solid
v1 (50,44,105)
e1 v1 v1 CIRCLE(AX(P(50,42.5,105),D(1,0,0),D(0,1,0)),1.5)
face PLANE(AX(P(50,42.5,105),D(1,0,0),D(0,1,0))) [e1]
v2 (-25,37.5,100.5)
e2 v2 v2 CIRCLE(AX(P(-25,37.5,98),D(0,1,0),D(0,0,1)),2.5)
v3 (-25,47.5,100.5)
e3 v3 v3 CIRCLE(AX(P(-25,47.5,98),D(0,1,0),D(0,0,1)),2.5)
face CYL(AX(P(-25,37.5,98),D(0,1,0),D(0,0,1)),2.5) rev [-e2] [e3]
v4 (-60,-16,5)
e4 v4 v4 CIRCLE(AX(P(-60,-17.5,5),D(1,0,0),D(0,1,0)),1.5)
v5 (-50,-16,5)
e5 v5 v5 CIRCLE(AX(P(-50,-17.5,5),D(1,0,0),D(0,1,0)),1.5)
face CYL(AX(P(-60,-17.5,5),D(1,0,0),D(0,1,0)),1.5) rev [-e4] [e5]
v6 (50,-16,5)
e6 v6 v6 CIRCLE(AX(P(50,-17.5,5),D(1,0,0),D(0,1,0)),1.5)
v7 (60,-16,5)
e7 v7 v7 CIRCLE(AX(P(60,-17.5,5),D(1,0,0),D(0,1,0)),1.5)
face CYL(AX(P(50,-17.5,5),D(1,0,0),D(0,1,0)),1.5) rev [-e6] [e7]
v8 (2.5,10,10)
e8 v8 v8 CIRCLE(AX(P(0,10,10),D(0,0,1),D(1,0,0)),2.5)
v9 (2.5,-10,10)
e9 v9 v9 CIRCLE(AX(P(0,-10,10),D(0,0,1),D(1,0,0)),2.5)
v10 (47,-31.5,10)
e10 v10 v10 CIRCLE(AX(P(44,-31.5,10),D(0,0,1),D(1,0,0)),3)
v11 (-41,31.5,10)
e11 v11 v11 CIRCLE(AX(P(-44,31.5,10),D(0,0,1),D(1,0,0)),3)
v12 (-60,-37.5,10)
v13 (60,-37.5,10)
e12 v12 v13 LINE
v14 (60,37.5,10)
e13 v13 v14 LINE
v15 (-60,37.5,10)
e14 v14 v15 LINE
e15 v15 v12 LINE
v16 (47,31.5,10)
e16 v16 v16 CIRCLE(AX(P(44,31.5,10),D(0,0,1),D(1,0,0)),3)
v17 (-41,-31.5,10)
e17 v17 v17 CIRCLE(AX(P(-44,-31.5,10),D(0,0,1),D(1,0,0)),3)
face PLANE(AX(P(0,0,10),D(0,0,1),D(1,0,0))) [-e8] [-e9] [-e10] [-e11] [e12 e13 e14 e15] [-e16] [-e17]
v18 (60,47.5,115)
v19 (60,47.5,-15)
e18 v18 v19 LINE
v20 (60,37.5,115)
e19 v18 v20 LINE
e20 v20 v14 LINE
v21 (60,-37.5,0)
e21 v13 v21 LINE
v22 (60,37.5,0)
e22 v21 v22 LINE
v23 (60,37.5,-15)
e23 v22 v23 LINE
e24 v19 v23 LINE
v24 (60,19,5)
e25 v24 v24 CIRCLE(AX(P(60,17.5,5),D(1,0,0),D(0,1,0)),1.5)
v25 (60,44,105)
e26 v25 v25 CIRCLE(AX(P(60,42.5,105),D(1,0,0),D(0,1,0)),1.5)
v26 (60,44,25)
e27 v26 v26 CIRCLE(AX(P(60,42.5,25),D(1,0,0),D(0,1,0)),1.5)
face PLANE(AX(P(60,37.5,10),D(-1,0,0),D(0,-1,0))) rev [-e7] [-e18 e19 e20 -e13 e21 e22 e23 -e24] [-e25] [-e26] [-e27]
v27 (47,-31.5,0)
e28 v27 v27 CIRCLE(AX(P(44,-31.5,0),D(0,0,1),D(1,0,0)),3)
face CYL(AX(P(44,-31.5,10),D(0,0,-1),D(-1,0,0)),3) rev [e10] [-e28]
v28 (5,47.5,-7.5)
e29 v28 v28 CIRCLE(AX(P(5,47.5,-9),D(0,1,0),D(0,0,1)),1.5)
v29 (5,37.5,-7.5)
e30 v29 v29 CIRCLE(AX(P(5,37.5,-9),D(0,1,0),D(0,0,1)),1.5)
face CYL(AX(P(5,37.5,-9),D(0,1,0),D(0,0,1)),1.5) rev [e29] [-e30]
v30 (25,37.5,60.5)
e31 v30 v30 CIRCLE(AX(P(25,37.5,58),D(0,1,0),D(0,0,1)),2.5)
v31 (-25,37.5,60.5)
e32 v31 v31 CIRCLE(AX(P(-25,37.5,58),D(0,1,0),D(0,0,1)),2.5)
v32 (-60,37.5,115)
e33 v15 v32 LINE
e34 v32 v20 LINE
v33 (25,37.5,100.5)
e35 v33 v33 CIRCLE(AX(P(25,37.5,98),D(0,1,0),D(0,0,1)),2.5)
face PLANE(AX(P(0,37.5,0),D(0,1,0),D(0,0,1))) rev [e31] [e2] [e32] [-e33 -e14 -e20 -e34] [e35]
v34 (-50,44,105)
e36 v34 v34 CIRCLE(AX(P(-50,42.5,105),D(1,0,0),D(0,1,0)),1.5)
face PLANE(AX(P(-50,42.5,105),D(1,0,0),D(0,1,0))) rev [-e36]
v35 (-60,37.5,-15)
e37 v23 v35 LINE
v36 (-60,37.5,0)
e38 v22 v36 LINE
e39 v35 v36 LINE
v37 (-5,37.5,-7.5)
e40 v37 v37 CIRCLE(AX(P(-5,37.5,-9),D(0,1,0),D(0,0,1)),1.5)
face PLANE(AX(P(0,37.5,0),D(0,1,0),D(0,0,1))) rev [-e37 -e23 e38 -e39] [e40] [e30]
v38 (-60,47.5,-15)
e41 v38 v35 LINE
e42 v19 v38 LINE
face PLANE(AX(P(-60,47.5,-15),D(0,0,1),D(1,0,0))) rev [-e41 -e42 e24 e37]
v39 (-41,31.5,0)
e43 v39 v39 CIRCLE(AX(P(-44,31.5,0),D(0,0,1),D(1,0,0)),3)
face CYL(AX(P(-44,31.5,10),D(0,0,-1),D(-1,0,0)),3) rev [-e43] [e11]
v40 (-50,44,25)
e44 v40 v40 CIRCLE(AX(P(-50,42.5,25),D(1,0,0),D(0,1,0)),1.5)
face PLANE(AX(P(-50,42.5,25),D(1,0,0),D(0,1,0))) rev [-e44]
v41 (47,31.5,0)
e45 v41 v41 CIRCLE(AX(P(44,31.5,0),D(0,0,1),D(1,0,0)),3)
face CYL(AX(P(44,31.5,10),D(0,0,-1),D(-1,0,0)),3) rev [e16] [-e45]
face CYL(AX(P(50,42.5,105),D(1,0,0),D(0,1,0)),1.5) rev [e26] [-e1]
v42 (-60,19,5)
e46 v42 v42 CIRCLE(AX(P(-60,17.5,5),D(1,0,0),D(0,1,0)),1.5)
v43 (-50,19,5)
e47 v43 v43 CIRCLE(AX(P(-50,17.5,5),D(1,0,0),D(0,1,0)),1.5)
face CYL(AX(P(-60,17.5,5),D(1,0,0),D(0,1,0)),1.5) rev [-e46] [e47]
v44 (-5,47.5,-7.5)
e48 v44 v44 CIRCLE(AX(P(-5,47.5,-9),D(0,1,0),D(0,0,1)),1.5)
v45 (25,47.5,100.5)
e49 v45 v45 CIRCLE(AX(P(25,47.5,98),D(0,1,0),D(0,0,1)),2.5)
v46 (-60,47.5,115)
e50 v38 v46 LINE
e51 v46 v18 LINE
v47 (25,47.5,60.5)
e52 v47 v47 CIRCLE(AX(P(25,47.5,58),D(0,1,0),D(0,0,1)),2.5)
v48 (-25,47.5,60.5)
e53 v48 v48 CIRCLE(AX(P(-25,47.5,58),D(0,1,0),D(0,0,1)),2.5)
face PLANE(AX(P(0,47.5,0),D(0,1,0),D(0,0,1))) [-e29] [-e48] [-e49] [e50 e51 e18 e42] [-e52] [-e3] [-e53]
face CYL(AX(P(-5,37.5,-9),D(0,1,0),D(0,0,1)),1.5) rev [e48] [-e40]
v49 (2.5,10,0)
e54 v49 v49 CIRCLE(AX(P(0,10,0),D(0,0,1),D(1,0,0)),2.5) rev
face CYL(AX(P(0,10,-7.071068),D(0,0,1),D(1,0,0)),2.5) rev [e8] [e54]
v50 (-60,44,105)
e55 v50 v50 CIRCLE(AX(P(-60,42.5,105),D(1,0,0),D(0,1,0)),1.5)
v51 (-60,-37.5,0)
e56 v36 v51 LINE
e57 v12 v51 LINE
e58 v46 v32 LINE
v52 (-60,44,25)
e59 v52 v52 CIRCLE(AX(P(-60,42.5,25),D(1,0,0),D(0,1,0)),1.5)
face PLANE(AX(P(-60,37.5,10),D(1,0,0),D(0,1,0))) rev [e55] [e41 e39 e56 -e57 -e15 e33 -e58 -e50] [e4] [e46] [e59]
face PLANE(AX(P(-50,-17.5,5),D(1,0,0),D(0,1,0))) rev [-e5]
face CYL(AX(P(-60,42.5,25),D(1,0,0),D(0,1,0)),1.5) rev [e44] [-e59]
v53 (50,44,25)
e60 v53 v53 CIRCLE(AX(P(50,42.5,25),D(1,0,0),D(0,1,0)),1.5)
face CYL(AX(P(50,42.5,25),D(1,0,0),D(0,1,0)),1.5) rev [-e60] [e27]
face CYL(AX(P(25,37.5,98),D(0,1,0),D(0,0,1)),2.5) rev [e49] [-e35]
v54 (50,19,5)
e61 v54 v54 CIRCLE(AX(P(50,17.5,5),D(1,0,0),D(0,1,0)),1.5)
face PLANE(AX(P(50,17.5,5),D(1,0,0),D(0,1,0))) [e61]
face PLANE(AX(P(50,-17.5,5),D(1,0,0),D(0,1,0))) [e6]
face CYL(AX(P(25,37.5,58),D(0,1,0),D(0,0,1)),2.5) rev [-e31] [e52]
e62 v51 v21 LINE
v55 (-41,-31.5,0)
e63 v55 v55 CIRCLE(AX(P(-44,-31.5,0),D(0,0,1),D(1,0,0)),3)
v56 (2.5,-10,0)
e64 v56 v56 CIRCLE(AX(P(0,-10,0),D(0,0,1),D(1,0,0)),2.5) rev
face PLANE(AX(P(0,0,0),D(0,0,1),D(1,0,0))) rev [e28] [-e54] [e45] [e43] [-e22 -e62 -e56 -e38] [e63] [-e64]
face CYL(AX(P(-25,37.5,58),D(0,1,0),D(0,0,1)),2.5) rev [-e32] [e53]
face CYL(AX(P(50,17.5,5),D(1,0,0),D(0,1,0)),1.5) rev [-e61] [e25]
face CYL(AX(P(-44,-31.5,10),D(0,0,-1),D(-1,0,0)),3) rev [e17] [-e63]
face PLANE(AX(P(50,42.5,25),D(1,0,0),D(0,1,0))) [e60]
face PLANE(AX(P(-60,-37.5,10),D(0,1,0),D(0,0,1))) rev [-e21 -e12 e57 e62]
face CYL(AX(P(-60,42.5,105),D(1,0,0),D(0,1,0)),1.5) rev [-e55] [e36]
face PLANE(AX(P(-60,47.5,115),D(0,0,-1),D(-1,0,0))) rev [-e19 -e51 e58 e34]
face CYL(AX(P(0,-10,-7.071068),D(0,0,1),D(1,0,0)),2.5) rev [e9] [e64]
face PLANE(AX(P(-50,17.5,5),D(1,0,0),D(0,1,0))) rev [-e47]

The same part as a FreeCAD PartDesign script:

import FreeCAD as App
import Part
import Sketcher

V = App.Vector
Q = App.Units.Quantity

doc = App.newDocument("Part")
params = doc.addObject("Spreadsheet::Sheet", "Params")
for row, (alias, value) in enumerate([
    ("sketch1_diameter", "6 mm"),
    ("sketch1_width", "120 mm"),
    ("sketch1_height", "75 mm"),
    ("pad1_length", "10 mm"),
    ("sketch2_diameter", "5 mm"),
    ("pocket1_length", "10 mm"),
    ("sketch3_diameter", "3 mm"),
    ("pocket2_length", "10 mm"),
    ("linearpattern_pitch", "110 mm"),
    ("sketch4_width", "120 mm"),
    ("sketch4_height", "130 mm"),
    ("pad2_length", "10 mm"),
    ("sketch5_diameter", "3 mm"),
    ("pocket3_length", "10 mm"),
    ("linearpattern2_pitch", "110 mm"),
    ("sketch6_diameter", "5 mm"),
    ("pocket4_length", "10 mm"),
    ("sketch7_diameter", "3 mm"),
    ("pocket5_length", "10 mm"),
], start=1):
    params.set(f"A{row}", alias)
    params.set(f"B{row}", "=" + value)
    params.setAlias(f"B{row}", alias)

body = doc.addObject("PartDesign::Body", "Body")

sketch1 = body.newObject("Sketcher::SketchObject", "Sketch")
sketch1.AttachmentSupport = (doc.getObject("XY_Plane"), [""])
sketch1.MapMode = "FlatFace"
sketch1.addGeometry(Part.LineSegment(V(-60, 37.5, 0), V(-60, -37.5, 0)), False)
sketch1.addGeometry(Part.LineSegment(V(-60, -37.5, 0), V(60, -37.5, 0)), False)
sketch1.addGeometry(Part.LineSegment(V(60, -37.5, 0), V(60, 37.5, 0)), False)
sketch1.addGeometry(Part.LineSegment(V(60, 37.5, 0), V(-60, 37.5, 0)), False)
sketch1.addGeometry(Part.Circle(V(-44, -31.5, 0), V(0, 0, 1), 3), False)
sketch1.addGeometry(Part.Circle(V(44, -31.5, 0), V(0, 0, 1), 3), False)
sketch1.addGeometry(Part.Circle(V(-44, 31.5, 0), V(0, 0, 1), 3), False)
sketch1.addGeometry(Part.Circle(V(44, 31.5, 0), V(0, 0, 1), 3), False)
sketch1.addConstraint(Sketcher.Constraint("Coincident", 0, 2, 1, 1))
sketch1.addConstraint(Sketcher.Constraint("Coincident", 1, 2, 2, 1))
sketch1.addConstraint(Sketcher.Constraint("Coincident", 2, 2, 3, 1))
sketch1.addConstraint(Sketcher.Constraint("Coincident", 3, 2, 0, 1))
sketch1.addConstraint(Sketcher.Constraint("Vertical", 0))
sketch1.addConstraint(Sketcher.Constraint("Horizontal", 1))
sketch1.addConstraint(Sketcher.Constraint("Vertical", 2))
sketch1.addConstraint(Sketcher.Constraint("Horizontal", 3))
sketch1.addConstraint(Sketcher.Constraint("Equal", 4, 5))
sketch1.addConstraint(Sketcher.Constraint("Equal", 5, 6))
sketch1.addConstraint(Sketcher.Constraint("Equal", 6, 7))
sketch1.addConstraint(Sketcher.Constraint("Symmetric", 5, 3, 6, 3, -1, 1))
sketch1.addConstraint(Sketcher.Constraint("Symmetric", 4, 3, 7, 3, -1, 1))
sketch1.addConstraint(Sketcher.Constraint("Symmetric", 0, 2, 2, 2, -1, 1))
sketch1.addConstraint(Sketcher.Constraint("Symmetric", 4, 3, 5, 3, -2))
sketch1.addConstraint(Sketcher.Constraint("Diameter", 4, Q("6 mm")))
sketch1.addConstraint(Sketcher.Constraint("DistanceX", 1, 1, 1, 2, Q("120 mm")))
sketch1.addConstraint(Sketcher.Constraint("DistanceY", 0, 2, 0, 1, Q("75 mm")))
sketch1.addConstraint(Sketcher.Constraint("DistanceX", 4, 3, -1, 1, Q("44 mm")))
sketch1.addConstraint(Sketcher.Constraint("DistanceY", 4, 3, 6, 3, Q("63 mm")))
sketch1.setExpression("Constraints[15]", "Params.sketch1_diameter")
sketch1.setExpression("Constraints[16]", "Params.sketch1_width")
sketch1.setExpression("Constraints[17]", "Params.sketch1_height")
pad1 = body.newObject("PartDesign::Pad", "Pad")
pad1.Profile = sketch1
pad1.setExpression("Length", "Params.pad1_length")

sketch2 = body.newObject("Sketcher::SketchObject", "Sketch001")
sketch2.AttachmentSupport = (doc.getObject("XY_Plane"), [""])
sketch2.MapMode = "FlatFace"
sketch2.AttachmentOffset = App.Placement(V(0, 0, 10), App.Rotation())
sketch2.addGeometry(Part.Circle(V(0, 10, 0), V(0, 0, 1), 2.5), False)
sketch2.addGeometry(Part.Circle(V(0, -10, 0), V(0, 0, 1), 2.5), False)
sketch2.addConstraint(Sketcher.Constraint("Equal", 0, 1))
sketch2.addConstraint(Sketcher.Constraint("Symmetric", 0, 3, 1, 3, -1, 1))
sketch2.addConstraint(Sketcher.Constraint("PointOnObject", 0, 3, -2))
sketch2.addConstraint(Sketcher.Constraint("Diameter", 0, Q("5 mm")))
sketch2.addConstraint(Sketcher.Constraint("DistanceY", -1, 1, 0, 3, Q("10 mm")))
sketch2.setExpression("Constraints[3]", "Params.sketch2_diameter")
pocket1 = body.newObject("PartDesign::Pocket", "Pocket")
pocket1.Profile = sketch2
pocket1.setExpression("Length", "Params.pocket1_length")

sketch3 = body.newObject("Sketcher::SketchObject", "Sketch002")
sketch3.AttachmentSupport = (doc.getObject("YZ_Plane"), [""])
sketch3.MapMode = "FlatFace"
sketch3.AttachmentOffset = App.Placement(V(0, 0, 60), App.Rotation())
sketch3.addGeometry(Part.Circle(V(17.5, 5, 0), V(0, 0, 1), 1.5), False)
sketch3.addGeometry(Part.Circle(V(-17.5, 5, 0), V(0, 0, 1), 1.5), False)
sketch3.addConstraint(Sketcher.Constraint("Equal", 0, 1))
sketch3.addConstraint(Sketcher.Constraint("Symmetric", 0, 3, 1, 3, -2))
sketch3.addConstraint(Sketcher.Constraint("Diameter", 0, Q("3 mm")))
sketch3.addConstraint(Sketcher.Constraint("DistanceY", -1, 1, 0, 3, Q("5 mm")))
sketch3.addConstraint(Sketcher.Constraint("DistanceX", 1, 3, 0, 3, Q("35 mm")))
sketch3.setExpression("Constraints[2]", "Params.sketch3_diameter")
pocket2 = body.newObject("PartDesign::Pocket", "Pocket001")
pocket2.Profile = sketch3
pocket2.setExpression("Length", "Params.pocket2_length")
doc.recompute()

linearpattern = body.newObject("PartDesign::LinearPattern", "LinearPattern")
linearpattern.Originals = [pocket2]
linearpattern.Direction = (doc.getObject("X_Axis"), [""])
linearpattern.Mode = "offset"
linearpattern.setExpression("Offset", "Params.linearpattern_pitch")
linearpattern.Occurrences = 2
linearpattern.Reversed = True
body.Tip = linearpattern

sketch4 = body.newObject("Sketcher::SketchObject", "Sketch003")
sketch4.AttachmentSupport = (doc.getObject("XZ_Plane"), [""])
sketch4.MapMode = "FlatFace"
sketch4.AttachmentOffset = App.Placement(V(0, 0, -37.5), App.Rotation())
sketch4.addGeometry(Part.LineSegment(V(-60, -15, 0), V(-60, 115, 0)), False)
sketch4.addGeometry(Part.LineSegment(V(-60, 115, 0), V(60, 115, 0)), False)
sketch4.addGeometry(Part.LineSegment(V(60, 115, 0), V(60, -15, 0)), False)
sketch4.addGeometry(Part.LineSegment(V(60, -15, 0), V(-60, -15, 0)), False)
sketch4.addConstraint(Sketcher.Constraint("Coincident", 0, 2, 1, 1))
sketch4.addConstraint(Sketcher.Constraint("Coincident", 1, 2, 2, 1))
sketch4.addConstraint(Sketcher.Constraint("Coincident", 2, 2, 3, 1))
sketch4.addConstraint(Sketcher.Constraint("Coincident", 3, 2, 0, 1))
sketch4.addConstraint(Sketcher.Constraint("Vertical", 0))
sketch4.addConstraint(Sketcher.Constraint("Horizontal", 1))
sketch4.addConstraint(Sketcher.Constraint("Vertical", 2))
sketch4.addConstraint(Sketcher.Constraint("Horizontal", 3))
sketch4.addConstraint(Sketcher.Constraint("DistanceX", 1, 1, 1, 2, Q("120 mm")))
sketch4.addConstraint(Sketcher.Constraint("DistanceY", 0, 1, 0, 2, Q("130 mm")))
sketch4.addConstraint(Sketcher.Constraint("DistanceX", 0, 2, -1, 1, Q("60 mm")))
sketch4.addConstraint(Sketcher.Constraint("DistanceY", -1, 1, 0, 2, Q("115 mm")))
sketch4.setExpression("Constraints[8]", "Params.sketch4_width")
sketch4.setExpression("Constraints[9]", "Params.sketch4_height")
pad2 = body.newObject("PartDesign::Pad", "Pad001")
pad2.Profile = sketch4
pad2.setExpression("Length", "Params.pad2_length")
pad2.Reversed = True

sketch5 = body.newObject("Sketcher::SketchObject", "Sketch004")
sketch5.AttachmentSupport = (doc.getObject("YZ_Plane"), [""])
sketch5.MapMode = "FlatFace"
sketch5.AttachmentOffset = App.Placement(V(0, 0, 60), App.Rotation())
sketch5.addGeometry(Part.Circle(V(42.5, 105, 0), V(0, 0, 1), 1.5), False)
sketch5.addGeometry(Part.Circle(V(42.5, 25, 0), V(0, 0, 1), 1.5), False)
sketch5.addConstraint(Sketcher.Constraint("Equal", 0, 1))
sketch5.addConstraint(Sketcher.Constraint("Vertical", 0, 3, 1, 3))
sketch5.addConstraint(Sketcher.Constraint("Diameter", 0, Q("3 mm")))
sketch5.addConstraint(Sketcher.Constraint("DistanceY", -1, 1, 0, 3, Q("105 mm")))
sketch5.addConstraint(Sketcher.Constraint("DistanceY", -1, 1, 1, 3, Q("25 mm")))
sketch5.addConstraint(Sketcher.Constraint("DistanceX", -1, 1, 0, 3, Q("42.5 mm")))
sketch5.setExpression("Constraints[2]", "Params.sketch5_diameter")
pocket3 = body.newObject("PartDesign::Pocket", "Pocket002")
pocket3.Profile = sketch5
pocket3.setExpression("Length", "Params.pocket3_length")
doc.recompute()

linearpattern2 = body.newObject("PartDesign::LinearPattern", "LinearPattern001")
linearpattern2.Originals = [pocket3]
linearpattern2.Direction = (doc.getObject("X_Axis"), [""])
linearpattern2.Mode = "offset"
linearpattern2.setExpression("Offset", "Params.linearpattern2_pitch")
linearpattern2.Occurrences = 2
linearpattern2.Reversed = True
body.Tip = linearpattern2

sketch6 = body.newObject("Sketcher::SketchObject", "Sketch005")
sketch6.AttachmentSupport = (doc.getObject("XZ_Plane"), [""])
sketch6.MapMode = "FlatFace"
sketch6.AttachmentOffset = App.Placement(V(0, 0, -47.5), App.Rotation())
sketch6.addGeometry(Part.Circle(V(-25, 98, 0), V(0, 0, 1), 2.5), False)
sketch6.addGeometry(Part.Circle(V(25, 98, 0), V(0, 0, 1), 2.5), False)
sketch6.addGeometry(Part.Circle(V(-25, 58, 0), V(0, 0, 1), 2.5), False)
sketch6.addGeometry(Part.Circle(V(25, 58, 0), V(0, 0, 1), 2.5), False)
sketch6.addConstraint(Sketcher.Constraint("Equal", 0, 1))
sketch6.addConstraint(Sketcher.Constraint("Equal", 1, 2))
sketch6.addConstraint(Sketcher.Constraint("Equal", 2, 3))
sketch6.addConstraint(Sketcher.Constraint("Symmetric", 0, 3, 1, 3, -2))
sketch6.addConstraint(Sketcher.Constraint("Symmetric", 2, 3, 3, 3, -2))
sketch6.addConstraint(Sketcher.Constraint("Vertical", 0, 3, 2, 3))
sketch6.addConstraint(Sketcher.Constraint("Diameter", 0, Q("5 mm")))
sketch6.addConstraint(Sketcher.Constraint("DistanceX", 0, 3, -1, 1, Q("25 mm")))
sketch6.addConstraint(Sketcher.Constraint("DistanceY", -1, 1, 0, 3, Q("98 mm")))
sketch6.addConstraint(Sketcher.Constraint("DistanceY", -1, 1, 2, 3, Q("58 mm")))
sketch6.setExpression("Constraints[6]", "Params.sketch6_diameter")
pocket4 = body.newObject("PartDesign::Pocket", "Pocket003")
pocket4.Profile = sketch6
pocket4.setExpression("Length", "Params.pocket4_length")
pocket4.Reversed = True

sketch7 = body.newObject("Sketcher::SketchObject", "Sketch006")
sketch7.AttachmentSupport = (doc.getObject("XZ_Plane"), [""])
sketch7.MapMode = "FlatFace"
sketch7.AttachmentOffset = App.Placement(V(0, 0, -47.5), App.Rotation())
sketch7.addGeometry(Part.Circle(V(-5, -9, 0), V(0, 0, 1), 1.5), False)
sketch7.addGeometry(Part.Circle(V(5, -9, 0), V(0, 0, 1), 1.5), False)
sketch7.addConstraint(Sketcher.Constraint("Equal", 0, 1))
sketch7.addConstraint(Sketcher.Constraint("Symmetric", 0, 3, 1, 3, -2))
sketch7.addConstraint(Sketcher.Constraint("Diameter", 0, Q("3 mm")))
sketch7.addConstraint(Sketcher.Constraint("DistanceX", 0, 3, -1, 1, Q("5 mm")))
sketch7.addConstraint(Sketcher.Constraint("DistanceY", 0, 3, -1, 1, Q("9 mm")))
sketch7.setExpression("Constraints[2]", "Params.sketch7_diameter")
pocket5 = body.newObject("PartDesign::Pocket", "Pocket004")
pocket5.Profile = sketch7
pocket5.setExpression("Length", "Params.pocket5_length")
pocket5.Reversed = True

doc.recompute()
